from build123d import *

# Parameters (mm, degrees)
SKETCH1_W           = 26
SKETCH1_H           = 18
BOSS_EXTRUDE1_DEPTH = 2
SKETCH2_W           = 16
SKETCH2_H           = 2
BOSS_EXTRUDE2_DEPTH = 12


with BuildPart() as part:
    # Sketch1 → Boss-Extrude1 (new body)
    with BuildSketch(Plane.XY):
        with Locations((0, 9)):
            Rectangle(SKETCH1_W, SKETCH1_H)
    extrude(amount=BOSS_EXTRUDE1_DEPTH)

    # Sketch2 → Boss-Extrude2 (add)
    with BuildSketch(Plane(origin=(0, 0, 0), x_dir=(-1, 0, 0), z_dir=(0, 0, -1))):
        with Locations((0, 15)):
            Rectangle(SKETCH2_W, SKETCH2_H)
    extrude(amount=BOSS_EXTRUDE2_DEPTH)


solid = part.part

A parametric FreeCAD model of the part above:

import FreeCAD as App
import Part
import Sketcher
from FreeCAD import Vector

doc = App.newDocument("Part")
body = doc.addObject("PartDesign::Body", "Body")

# Sketch on XY plane
sketch1 = body.newObject("Sketcher::SketchObject", "Sketch")
sketch1.AttachmentSupport = (doc.getObject("XY_Plane"), [""])
sketch1.MapMode = "FlatFace"
sketch1.addGeometry([
    Part.LineSegment(Vector(-13, 18, 0), Vector(-13, 0, 0)),
    Part.LineSegment(Vector(-13, 0, 0), Vector(13, 0, 0)),
    Part.LineSegment(Vector(13, 0, 0), Vector(13, 18, 0)),
    Part.LineSegment(Vector(13, 18, 0), Vector(-13, 18, 0)),
], False)
sketch1.addConstraint([
    Sketcher.Constraint("Coincident", 0, 2, 1, 1),
    Sketcher.Constraint("Coincident", 1, 2, 2, 1),
    Sketcher.Constraint("Coincident", 2, 2, 3, 1),
    Sketcher.Constraint("Coincident", 3, 2, 0, 1),
    Sketcher.Constraint("Vertical", 0),
    Sketcher.Constraint("Horizontal", 1),
    Sketcher.Constraint("Vertical", 2),
    Sketcher.Constraint("Horizontal", 3),
    Sketcher.Constraint("Symmetric", 0, 2, 1, 2, -1, 1),
    Sketcher.Constraint("DistanceX", 1, 1, 1, 2, 26.0),
    Sketcher.Constraint("DistanceY", 0, 2, 0, 1, 18.0),
])
pad1 = body.newObject("PartDesign::Pad", "Pad")
pad1.Profile = sketch1
pad1.Length = 2

# Sketch on XY plane
sketch2 = body.newObject("Sketcher::SketchObject", "Sketch001")
sketch2.AttachmentSupport = (doc.getObject("XY_Plane"), [""])
sketch2.MapMode = "FlatFace"
sketch2.addGeometry([
    Part.LineSegment(Vector(8, 16, 0), Vector(8, 14, 0)),
    Part.LineSegment(Vector(8, 14, 0), Vector(-8, 14, 0)),
    Part.LineSegment(Vector(-8, 14, 0), Vector(-8, 16, 0)),
    Part.LineSegment(Vector(-8, 16, 0), Vector(8, 16, 0)),
], False)
sketch2.addConstraint([
    Sketcher.Constraint("Coincident", 0, 2, 1, 1),
    Sketcher.Constraint("Coincident", 1, 2, 2, 1),
    Sketcher.Constraint("Coincident", 2, 2, 3, 1),
    Sketcher.Constraint("Coincident", 3, 2, 0, 1),
    Sketcher.Constraint("Vertical", 0),
    Sketcher.Constraint("Horizontal", 1),
    Sketcher.Constraint("Vertical", 2),
    Sketcher.Constraint("Horizontal", 3),
    Sketcher.Constraint("DistanceX", 1, 2, 1, 1, 16.0),
    Sketcher.Constraint("DistanceY", 0, 2, 0, 1, 2.0),
    Sketcher.Constraint("DistanceX", -1, 1, 0, 2, 8.0),
    Sketcher.Constraint("DistanceY", -1, 1, 0, 2, 14.0),
])
pad2 = body.newObject("PartDesign::Pad", "Pad001")
pad2.Profile = sketch2
pad2.Length = 12
pad2.Reversed = True

doc.recompute()
